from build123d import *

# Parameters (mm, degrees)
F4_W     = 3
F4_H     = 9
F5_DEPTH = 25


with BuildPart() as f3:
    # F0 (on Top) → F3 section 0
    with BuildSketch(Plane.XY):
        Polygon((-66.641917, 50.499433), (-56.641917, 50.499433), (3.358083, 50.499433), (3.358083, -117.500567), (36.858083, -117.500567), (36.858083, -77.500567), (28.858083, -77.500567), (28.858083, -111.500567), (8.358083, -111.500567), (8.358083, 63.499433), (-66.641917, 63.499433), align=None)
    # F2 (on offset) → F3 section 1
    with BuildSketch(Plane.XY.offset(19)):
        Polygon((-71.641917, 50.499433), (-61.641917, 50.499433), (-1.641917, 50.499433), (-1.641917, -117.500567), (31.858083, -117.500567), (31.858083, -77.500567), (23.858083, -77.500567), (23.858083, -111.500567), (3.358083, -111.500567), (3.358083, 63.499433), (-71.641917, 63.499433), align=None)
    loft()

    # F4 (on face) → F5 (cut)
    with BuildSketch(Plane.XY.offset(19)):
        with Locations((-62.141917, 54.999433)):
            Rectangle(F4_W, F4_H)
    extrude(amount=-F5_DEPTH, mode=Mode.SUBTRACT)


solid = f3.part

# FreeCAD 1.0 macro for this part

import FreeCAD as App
import Part
import Sketcher
from FreeCAD import Vector


def add_polygon(sketch, points):
    """Adds a closed chain of lines whose ends are joined by coincident constraints."""
    first, n = sketch.GeometryCount, len(points)
    for a, b in zip(points, points[1:] + points[:1]):
        sketch.addGeometry(Part.LineSegment(App.Vector(*a, 0), App.Vector(*b, 0)), False)
    for i in range(n):
        sketch.addConstraint(Sketcher.Constraint("Coincident", first + i, 2, first + (i + 1) % n, 1))

doc = App.newDocument("Part")
body = doc.addObject("PartDesign::Body", "Body")

# Sketch on XY plane
sketch1 = body.newObject("Sketcher::SketchObject", "Sketch")
sketch1.AttachmentSupport = (doc.getObject("XY_Plane"), [""])
sketch1.MapMode = "FlatFace"
add_polygon(sketch1, [(-67, 50), (3, 50), (3, -118), (37, -118), (37, -78), (29, -78), (29, -112), (8, -112), (8, 63), (-67, 63)])  # lines 0-9
sketch1.addConstraint([
    Sketcher.Constraint("Horizontal", 0),
    Sketcher.Constraint("Vertical", 1),
    Sketcher.Constraint("Horizontal", 2),
    Sketcher.Constraint("Vertical", 3),
    Sketcher.Constraint("Horizontal", 4),
    Sketcher.Constraint("Vertical", 5),
    Sketcher.Constraint("Horizontal", 6),
    Sketcher.Constraint("Vertical", 7),
    Sketcher.Constraint("Horizontal", 8),
    Sketcher.Constraint("Vertical", 9),
    Sketcher.Constraint("DistanceX", 0, 1, 0, 2, 70.0),
    Sketcher.Constraint("DistanceX", 4, 2, 4, 1, 8.0),
    Sketcher.Constraint("DistanceX", 8, 2, 8, 1, 75.0),
    Sketcher.Constraint("DistanceY", 1, 2, 1, 1, 168.0),
    Sketcher.Constraint("DistanceY", 3, 1, 3, 2, 40.0),
    Sketcher.Constraint("DistanceY", 5, 2, 5, 1, 34.0),
    Sketcher.Constraint("DistanceY", 7, 1, 7, 2, 175.0),
    Sketcher.Constraint("DistanceX", 2, 1, 2, 2, 33.5),
    Sketcher.Constraint("DistanceX", -1, 1, 0, 2, 3.358083),
    Sketcher.Constraint("DistanceY", -1, 1, 0, 2, 50.499433),
])

# Sketch on XY plane
sketch2 = body.newObject("Sketcher::SketchObject", "Sketch001")
sketch2.AttachmentSupport = (doc.getObject("XY_Plane"), [""])
sketch2.MapMode = "FlatFace"
sketch2.AttachmentOffset = App.Placement(Vector(0, 0, 19), App.Rotation())
add_polygon(sketch2, [(-72, 50), (-2, 50), (-2, -118), (32, -118), (32, -78), (24, -78), (24, -112), (3, -112), (3, 63), (-72, 63)])  # lines 0-9
sketch2.addConstraint([
    Sketcher.Constraint("Horizontal", 0),
    Sketcher.Constraint("Vertical", 1),
    Sketcher.Constraint("Horizontal", 2),
    Sketcher.Constraint("Vertical", 3),
    Sketcher.Constraint("Horizontal", 4),
    Sketcher.Constraint("Vertical", 5),
    Sketcher.Constraint("Horizontal", 6),
    Sketcher.Constraint("Vertical", 7),
    Sketcher.Constraint("Horizontal", 8),
    Sketcher.Constraint("Vertical", 9),
    Sketcher.Constraint("DistanceX", 0, 1, 0, 2, 70.0),
    Sketcher.Constraint("DistanceX", 4, 2, 4, 1, 8.0),
    Sketcher.Constraint("DistanceX", 8, 2, 8, 1, 75.0),
    Sketcher.Constraint("DistanceY", 1, 2, 1, 1, 168.0),
    Sketcher.Constraint("DistanceY", 3, 1, 3, 2, 40.0),
    Sketcher.Constraint("DistanceY", 5, 2, 5, 1, 34.0),
    Sketcher.Constraint("DistanceY", 7, 1, 7, 2, 175.0),
    Sketcher.Constraint("DistanceX", 2, 1, 2, 2, 33.5),
    Sketcher.Constraint("DistanceX", 0, 2, -1, 1, 1.641917),
    Sketcher.Constraint("DistanceY", -1, 1, 0, 2, 50.499433),
])

additiveloft = body.newObject("PartDesign::AdditiveLoft", "AdditiveLoft")
additiveloft.Profile = sketch1
additiveloft.Sections = [sketch2]

# Sketch on XY plane
sketch3 = body.newObject("Sketcher::SketchObject", "Sketch002")
sketch3.AttachmentSupport = (doc.getObject("XY_Plane"), [""])
sketch3.MapMode = "FlatFace"
sketch3.AttachmentOffset = App.Placement(Vector(0, 0, 19), App.Rotation())
add_polygon(sketch3, [(-63.6, 59.5), (-63.6, 50.5), (-60.6, 50.5), (-60.6, 59.5)])  # lines 0-3
sketch3.addConstraint([
    Sketcher.Constraint("Vertical", 0),
    Sketcher.Constraint("Horizontal", 1),
    Sketcher.Constraint("Vertical", 2),
    Sketcher.Constraint("Horizontal", 3),
    Sketcher.Constraint("DistanceX", 1, 1, 1, 2, 3.0),
    Sketcher.Constraint("DistanceY", 0, 2, 0, 1, 9.0),
    Sketcher.Constraint("DistanceX", 0, 2, -1, 1, 63.641917),
    Sketcher.Constraint("DistanceY", -1, 1, 0, 2, 50.499433),
])
pocket1 = body.newObject("PartDesign::Pocket", "Pocket")
pocket1.Profile = sketch3
pocket1.Length = 25

doc.recompute()
